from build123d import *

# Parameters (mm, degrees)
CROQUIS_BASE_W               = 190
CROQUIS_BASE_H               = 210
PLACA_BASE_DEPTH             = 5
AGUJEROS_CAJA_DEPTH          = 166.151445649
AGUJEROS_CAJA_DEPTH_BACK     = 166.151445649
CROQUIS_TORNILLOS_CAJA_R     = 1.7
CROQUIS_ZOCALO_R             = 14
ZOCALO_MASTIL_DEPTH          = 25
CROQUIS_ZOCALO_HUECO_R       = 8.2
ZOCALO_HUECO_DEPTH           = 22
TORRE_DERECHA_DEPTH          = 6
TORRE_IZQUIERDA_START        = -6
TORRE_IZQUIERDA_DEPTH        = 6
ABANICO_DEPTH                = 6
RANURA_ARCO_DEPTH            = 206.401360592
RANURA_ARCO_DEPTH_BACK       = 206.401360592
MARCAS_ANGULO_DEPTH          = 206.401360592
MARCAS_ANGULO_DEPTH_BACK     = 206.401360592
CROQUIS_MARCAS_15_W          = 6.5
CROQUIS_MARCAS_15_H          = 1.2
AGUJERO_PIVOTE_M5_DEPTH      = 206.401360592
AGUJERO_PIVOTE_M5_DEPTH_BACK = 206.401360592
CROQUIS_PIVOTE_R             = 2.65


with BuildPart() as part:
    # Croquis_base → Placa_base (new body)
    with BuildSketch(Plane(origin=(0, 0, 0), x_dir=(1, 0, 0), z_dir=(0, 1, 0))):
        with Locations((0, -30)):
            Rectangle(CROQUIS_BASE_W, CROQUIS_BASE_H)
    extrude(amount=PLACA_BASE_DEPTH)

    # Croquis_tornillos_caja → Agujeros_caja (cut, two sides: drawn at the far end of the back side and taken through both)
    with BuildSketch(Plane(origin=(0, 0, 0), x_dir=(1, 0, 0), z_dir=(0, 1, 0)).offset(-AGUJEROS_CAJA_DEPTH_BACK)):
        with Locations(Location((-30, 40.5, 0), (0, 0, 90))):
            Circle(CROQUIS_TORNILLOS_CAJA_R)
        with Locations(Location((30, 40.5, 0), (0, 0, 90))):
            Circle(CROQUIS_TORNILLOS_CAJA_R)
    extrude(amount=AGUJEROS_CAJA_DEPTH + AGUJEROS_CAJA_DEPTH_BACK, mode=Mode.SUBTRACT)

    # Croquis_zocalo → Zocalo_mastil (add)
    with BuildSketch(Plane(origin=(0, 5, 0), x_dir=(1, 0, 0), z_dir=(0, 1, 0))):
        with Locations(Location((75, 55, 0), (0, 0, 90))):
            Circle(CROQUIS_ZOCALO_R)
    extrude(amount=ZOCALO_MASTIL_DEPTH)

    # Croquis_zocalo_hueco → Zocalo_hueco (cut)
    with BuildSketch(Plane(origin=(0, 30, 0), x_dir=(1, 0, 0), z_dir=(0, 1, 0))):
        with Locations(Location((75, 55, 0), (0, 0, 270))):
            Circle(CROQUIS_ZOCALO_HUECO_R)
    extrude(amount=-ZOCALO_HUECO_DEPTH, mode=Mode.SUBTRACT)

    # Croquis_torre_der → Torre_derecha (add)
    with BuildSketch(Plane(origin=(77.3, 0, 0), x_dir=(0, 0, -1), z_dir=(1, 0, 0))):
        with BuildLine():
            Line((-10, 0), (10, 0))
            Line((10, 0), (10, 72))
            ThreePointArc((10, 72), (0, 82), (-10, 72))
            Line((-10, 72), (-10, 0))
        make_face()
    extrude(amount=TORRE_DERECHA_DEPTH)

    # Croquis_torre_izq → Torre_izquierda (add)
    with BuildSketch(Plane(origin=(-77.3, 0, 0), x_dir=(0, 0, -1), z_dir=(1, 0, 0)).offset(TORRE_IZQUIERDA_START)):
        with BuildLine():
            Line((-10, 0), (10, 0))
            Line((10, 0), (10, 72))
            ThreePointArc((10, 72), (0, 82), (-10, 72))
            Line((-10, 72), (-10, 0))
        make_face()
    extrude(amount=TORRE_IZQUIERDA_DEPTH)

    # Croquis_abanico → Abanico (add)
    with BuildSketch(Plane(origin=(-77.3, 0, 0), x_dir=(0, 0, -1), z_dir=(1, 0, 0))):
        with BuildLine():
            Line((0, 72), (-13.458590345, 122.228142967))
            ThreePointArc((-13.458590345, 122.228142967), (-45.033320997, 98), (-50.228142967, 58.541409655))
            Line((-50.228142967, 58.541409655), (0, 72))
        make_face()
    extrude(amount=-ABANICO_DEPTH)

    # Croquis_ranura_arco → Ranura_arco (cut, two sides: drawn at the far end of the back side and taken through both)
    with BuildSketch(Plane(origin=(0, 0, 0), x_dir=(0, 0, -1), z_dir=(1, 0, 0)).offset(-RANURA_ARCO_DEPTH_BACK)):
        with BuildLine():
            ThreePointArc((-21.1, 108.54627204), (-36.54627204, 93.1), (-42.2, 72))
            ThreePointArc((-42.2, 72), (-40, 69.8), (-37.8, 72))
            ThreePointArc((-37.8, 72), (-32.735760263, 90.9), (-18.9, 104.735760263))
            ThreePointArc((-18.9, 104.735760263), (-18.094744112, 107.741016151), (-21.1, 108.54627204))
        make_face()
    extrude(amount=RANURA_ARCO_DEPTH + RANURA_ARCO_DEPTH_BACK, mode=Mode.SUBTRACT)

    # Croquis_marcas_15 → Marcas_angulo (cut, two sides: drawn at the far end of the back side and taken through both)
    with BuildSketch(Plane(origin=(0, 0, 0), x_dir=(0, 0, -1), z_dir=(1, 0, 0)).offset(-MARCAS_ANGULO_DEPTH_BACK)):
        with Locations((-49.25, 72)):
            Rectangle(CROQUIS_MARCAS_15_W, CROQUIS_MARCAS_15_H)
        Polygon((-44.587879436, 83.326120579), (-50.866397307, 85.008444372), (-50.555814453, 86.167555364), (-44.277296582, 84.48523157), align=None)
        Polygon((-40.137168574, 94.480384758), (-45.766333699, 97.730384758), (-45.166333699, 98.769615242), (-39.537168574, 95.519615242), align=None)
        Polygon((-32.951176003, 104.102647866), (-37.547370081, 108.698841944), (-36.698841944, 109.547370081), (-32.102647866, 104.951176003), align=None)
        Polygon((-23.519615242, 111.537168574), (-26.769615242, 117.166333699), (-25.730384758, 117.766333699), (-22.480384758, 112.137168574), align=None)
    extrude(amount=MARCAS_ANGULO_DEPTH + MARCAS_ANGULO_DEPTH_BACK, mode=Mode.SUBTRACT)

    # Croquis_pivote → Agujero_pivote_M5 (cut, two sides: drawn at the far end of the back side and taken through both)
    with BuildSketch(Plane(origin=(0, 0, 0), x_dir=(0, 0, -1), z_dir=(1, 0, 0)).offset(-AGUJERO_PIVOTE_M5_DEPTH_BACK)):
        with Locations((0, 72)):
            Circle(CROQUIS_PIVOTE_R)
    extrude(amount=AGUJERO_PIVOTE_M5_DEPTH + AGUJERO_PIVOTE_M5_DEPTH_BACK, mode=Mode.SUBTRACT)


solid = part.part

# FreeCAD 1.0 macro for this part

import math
import FreeCAD as App
import Part
import Sketcher
from FreeCAD import Vector
Q = App.Units.Quantity

doc = App.newDocument("Part")
body = doc.addObject("PartDesign::Body", "Body")

# Sketch on XZ plane
sketch1 = doc.addObject("Sketcher::SketchObject", "Sketch")
body.addObject(sketch1)
sketch1.AttachmentSupport = (doc.XZ_Plane, [""])
sketch1.MapMode = "FlatFace"
sketch1.addGeometry([
    Part.LineSegment(Vector(-95, -75, 0), Vector(-95, 135, 0)),
    Part.LineSegment(Vector(-95, 135, 0), Vector(95, 135, 0)),
    Part.LineSegment(Vector(95, 135, 0), Vector(95, -75, 0)),
    Part.LineSegment(Vector(95, -75, 0), Vector(-95, -75, 0)),
], False)
sketch1.addConstraint([
    Sketcher.Constraint("Coincident", 0, 2, 1, 1),
    Sketcher.Constraint("Coincident", 1, 2, 2, 1),
    Sketcher.Constraint("Coincident", 2, 2, 3, 1),
    Sketcher.Constraint("Coincident", 3, 2, 0, 1),
    Sketcher.Constraint("Vertical", 0),
    Sketcher.Constraint("Horizontal", 1),
    Sketcher.Constraint("Vertical", 2),
    Sketcher.Constraint("Horizontal", 3),
    Sketcher.Constraint("DistanceX", 1, 1, 1, 2, Q("190 mm")),
    Sketcher.Constraint("DistanceY", 0, 1, 0, 2, Q("210 mm")),
    Sketcher.Constraint("DistanceX", 0, 2, -1, 1, Q("95 mm")),
    Sketcher.Constraint("DistanceY", -1, 1, 0, 2, Q("135 mm")),
])
pad1 = doc.addObject("PartDesign::Pad", "Pad")
body.addObject(pad1)
pad1.Profile = sketch1
pad1.Length = 5
pad1.Reversed = True

# Sketch on XZ plane
sketch2 = doc.addObject("Sketcher::SketchObject", "Sketch001")
body.addObject(sketch2)
sketch2.AttachmentSupport = (doc.XZ_Plane, [""])
sketch2.MapMode = "FlatFace"
sketch2.addGeometry([
    Part.Circle(Vector(-30, -40.5, 0), Vector(0, 0, 1), 1.7),
    Part.Circle(Vector(30, -40.5, 0), Vector(0, 0, 1), 1.7),
], False)
sketch2.addConstraint([
    Sketcher.Constraint("Equal", 0, 1),
    Sketcher.Constraint("Symmetric", 0, 3, 1, 3, -2),
    Sketcher.Constraint("Diameter", 0, Q("3.4 mm")),
    Sketcher.Constraint("DistanceX", 0, 3, -1, 1, Q("30 mm")),
    Sketcher.Constraint("DistanceY", 0, 3, -1, 1, Q("40.5 mm")),
])
pocket1 = doc.addObject("PartDesign::Pocket", "Pocket")
body.addObject(pocket1)
pocket1.Profile = sketch2
pocket1.Type = "ThroughAll"
pocket1.Midplane = True

# Sketch on XZ plane
sketch3 = doc.addObject("Sketcher::SketchObject", "Sketch002")
body.addObject(sketch3)
sketch3.AttachmentSupport = (doc.XZ_Plane, [""])
sketch3.MapMode = "FlatFace"
sketch3.AttachmentOffset = App.Placement(Vector(0, 0, -5), App.Rotation())
sketch3.addGeometry(Part.Circle(Vector(75, -55, 0), Vector(0, 0, 1), 14), False)
sketch3.addConstraint([
    Sketcher.Constraint("Diameter", 0, Q("28 mm")),
    Sketcher.Constraint("DistanceX", -1, 1, 0, 3, Q("75 mm")),
    Sketcher.Constraint("DistanceY", 0, 3, -1, 1, Q("55 mm")),
])
pad2 = doc.addObject("PartDesign::Pad", "Pad001")
body.addObject(pad2)
pad2.Profile = sketch3
pad2.Length = 25
pad2.Reversed = True

# Sketch on XZ plane
sketch4 = doc.addObject("Sketcher::SketchObject", "Sketch003")
body.addObject(sketch4)
sketch4.AttachmentSupport = (doc.XZ_Plane, [""])
sketch4.MapMode = "FlatFace"
sketch4.AttachmentOffset = App.Placement(Vector(0, 0, -30), App.Rotation())
sketch4.addGeometry(Part.Circle(Vector(75, -55, 0), Vector(0, 0, 1), 8), False)
sketch4.addConstraint([
    Sketcher.Constraint("Diameter", 0, Q("16.4 mm")),
    Sketcher.Constraint("DistanceX", -1, 1, 0, 3, Q("75 mm")),
    Sketcher.Constraint("DistanceY", 0, 3, -1, 1, Q("55 mm")),
])
pocket2 = doc.addObject("PartDesign::Pocket", "Pocket001")
body.addObject(pocket2)
pocket2.Profile = sketch4
pocket2.Length = 22
pocket2.Reversed = True

# Sketch on YZ plane
sketch5 = doc.addObject("Sketcher::SketchObject", "Sketch004")
body.addObject(sketch5)
sketch5.AttachmentSupport = (doc.YZ_Plane, [""])
sketch5.MapMode = "FlatFace"
sketch5.AttachmentOffset = App.Placement(Vector(0, 0, 77.3), App.Rotation())
sketch5.addGeometry([
    Part.LineSegment(Vector(0, 10, 0), Vector(0, -10, 0)),
    Part.LineSegment(Vector(0, -10, 0), Vector(72, -10, 0)),
    Part.ArcOfCircle(Part.Circle(Vector(72, 0, 0), Vector(0, 0, 1), 10), math.radians(-90), math.radians(90)),
    Part.LineSegment(Vector(72, 10, 0), Vector(0, 10, 0)),
], False)
sketch5.addConstraint([
    Sketcher.Constraint("Coincident", 0, 2, 1, 1),
    Sketcher.Constraint("Tangent", 1, 2, 2, 1),
    Sketcher.Constraint("Tangent", 2, 2, 3, 1),
    Sketcher.Constraint("Coincident", 3, 2, 0, 1),
    Sketcher.Constraint("Vertical", 0),
    Sketcher.Constraint("Horizontal", 1),
    Sketcher.Constraint("Horizontal", 3),
    Sketcher.Constraint("Symmetric", 0, 2, 3, 2, -1, 1),
    Sketcher.Constraint("Radius", 2, Q("10 mm")),
    Sketcher.Constraint("DistanceX", 1, 1, 1, 2, Q("72 mm")),
])
pad3 = doc.addObject("PartDesign::Pad", "Pad002")
body.addObject(pad3)
pad3.Profile = sketch5
pad3.Length = 6

# Sketch on YZ plane
sketch6 = doc.addObject("Sketcher::SketchObject", "Sketch005")
body.addObject(sketch6)
sketch6.AttachmentSupport = (doc.YZ_Plane, [""])
sketch6.MapMode = "FlatFace"
sketch6.AttachmentOffset = App.Placement(Vector(0, 0, -83.3), App.Rotation())
sketch6.addGeometry([
    Part.LineSegment(Vector(0, 10, 0), Vector(0, -10, 0)),
    Part.LineSegment(Vector(0, -10, 0), Vector(72, -10, 0)),
    Part.ArcOfCircle(Part.Circle(Vector(72, 0, 0), Vector(0, 0, 1), 10), math.radians(-90), math.radians(90)),
    Part.LineSegment(Vector(72, 10, 0), Vector(0, 10, 0)),
], False)
sketch6.addConstraint([
    Sketcher.Constraint("Coincident", 0, 2, 1, 1),
    Sketcher.Constraint("Tangent", 1, 2, 2, 1),
    Sketcher.Constraint("Tangent", 2, 2, 3, 1),
    Sketcher.Constraint("Coincident", 3, 2, 0, 1),
    Sketcher.Constraint("Vertical", 0),
    Sketcher.Constraint("Horizontal", 1),
    Sketcher.Constraint("Horizontal", 3),
    Sketcher.Constraint("Symmetric", 0, 2, 3, 2, -1, 1),
    Sketcher.Constraint("Radius", 2, Q("10 mm")),
    Sketcher.Constraint("DistanceX", 1, 1, 1, 2, Q("72 mm")),
])
pad4 = doc.addObject("PartDesign::Pad", "Pad003")
body.addObject(pad4)
pad4.Profile = sketch6
pad4.Length = 6

# Sketch on YZ plane
sketch7 = doc.addObject("Sketcher::SketchObject", "Sketch006")
body.addObject(sketch7)
sketch7.AttachmentSupport = (doc.YZ_Plane, [""])
sketch7.MapMode = "FlatFace"
sketch7.AttachmentOffset = App.Placement(Vector(0, 0, -77.3), App.Rotation())
sketch7.addGeometry([
    Part.LineSegment(Vector(72, 0, 0), Vector(122, 13, 0)),
    Part.ArcOfCircle(Part.Circle(Vector(72, 0, 0), Vector(0, 0, 1), 52), math.radians(15), math.radians(105)),
    Part.LineSegment(Vector(59, 50, 0), Vector(72, 0, 0)),
], False)
sketch7.addConstraint([
    Sketcher.Constraint("Coincident", 0, 2, 1, 1),
    Sketcher.Constraint("Coincident", 1, 2, 2, 1),
    Sketcher.Constraint("Coincident", 2, 2, 0, 1),
    Sketcher.Constraint("Coincident", 2, 2, 1, 3),
    Sketcher.Constraint("PointOnObject", 1, 3, -1),
    Sketcher.Constraint("Perpendicular", 0, 2),
    Sketcher.Constraint("Radius", 1, Q("52 mm")),
    Sketcher.Constraint("Angle", 0, Q("15 deg")),
    Sketcher.Constraint("DistanceX", -1, 1, 1, 3, Q("72 mm")),
])
pad5 = doc.addObject("PartDesign::Pad", "Pad004")
body.addObject(pad5)
pad5.Profile = sketch7
pad5.Length = 6
pad5.Reversed = True

# Sketch on YZ plane
sketch8 = doc.addObject("Sketcher::SketchObject", "Sketch007")
body.addObject(sketch8)
sketch8.AttachmentSupport = (doc.YZ_Plane, [""])
sketch8.MapMode = "FlatFace"
sketch8.addGeometry([
    Part.ArcOfCircle(Part.Circle(Vector(72, 0, 0), Vector(0, 0, 1), 42.2), math.radians(30), math.radians(90)),
    Part.ArcOfCircle(Part.Circle(Vector(72, 40, 0), Vector(0, 0, 1), 2.2), math.radians(90), math.radians(270)),
    Part.ArcOfCircle(Part.Circle(Vector(72, 0, 0), Vector(0, 0, 1), 37.8), math.radians(30), math.radians(90)),
    Part.ArcOfCircle(Part.Circle(Vector(106.6, 20, 0), Vector(0, 0, 1), 2.2), math.radians(-150), math.radians(30)),
], False)
sketch8.addConstraint([
    Sketcher.Constraint("Tangent", 0, 2, 1, 1),
    Sketcher.Constraint("Tangent", 1, 2, 2, 2),
    Sketcher.Constraint("Tangent", 2, 1, 3, 1),
    Sketcher.Constraint("Tangent", 3, 2, 0, 1),
    Sketcher.Constraint("Coincident", 2, 3, 0, 3),
    Sketcher.Constraint("PointOnObject", 0, 3, -1),
    Sketcher.Constraint("Vertical", 0, 3, 1, 3),
    Sketcher.Constraint("Radius", 0, Q("42.2 mm")),
    Sketcher.Constraint("Radius", 1, Q("2.2 mm")),
    Sketcher.Constraint("DistanceX", -1, 1, 0, 3, Q("72 mm")),
    Sketcher.Constraint("DistanceY", -1, 1, 3, 3, Q("20 mm")),
])
pocket3 = doc.addObject("PartDesign::Pocket", "Pocket002")
body.addObject(pocket3)
pocket3.Profile = sketch8
pocket3.Type = "ThroughAll"
pocket3.Midplane = True

# Sketch on YZ plane
sketch9 = doc.addObject("Sketcher::SketchObject", "Sketch008")
body.addObject(sketch9)
sketch9.AttachmentSupport = (doc.YZ_Plane, [""])
sketch9.MapMode = "FlatFace"
sketch9.addGeometry([
    Part.LineSegment(Vector(72.6, 52.5, 0), Vector(71.4, 52.5, 0)),  # 0
    Part.LineSegment(Vector(71.4, 52.5, 0), Vector(71.4, 46, 0)),  # 1
    Part.LineSegment(Vector(71.4, 46, 0), Vector(72.6, 46, 0)),  # 2
    Part.LineSegment(Vector(72.6, 46, 0), Vector(72.6, 52.5, 0)),  # 3
    Part.LineSegment(Vector(85, 50.9, 0), Vector(83.3, 44.6, 0)),  # 4
    Part.LineSegment(Vector(83.3, 44.6, 0), Vector(84.5, 44.3, 0)),  # 5
    Part.LineSegment(Vector(84.5, 44.3, 0), Vector(86.2, 50.6, 0)),  # 6
    Part.LineSegment(Vector(86.2, 50.6, 0), Vector(85, 50.9, 0)),  # 7
    Part.LineSegment(Vector(97.7, 45.8, 0), Vector(94.5, 40.1, 0)),  # 8
    Part.LineSegment(Vector(94.5, 40.1, 0), Vector(95.5, 39.5, 0)),  # 9
    Part.LineSegment(Vector(95.5, 39.5, 0), Vector(98.8, 45.2, 0)),  # 10
    Part.LineSegment(Vector(98.8, 45.2, 0), Vector(97.7, 45.8, 0)),  # 11
    Part.LineSegment(Vector(108.7, 37.5, 0), Vector(104.1, 33, 0)),  # 12
    Part.LineSegment(Vector(104.1, 33, 0), Vector(105, 32.1, 0)),  # 13
    Part.LineSegment(Vector(105, 32.1, 0), Vector(109.5, 36.7, 0)),  # 14
    Part.LineSegment(Vector(109.5, 36.7, 0), Vector(108.7, 37.5, 0)),  # 15
    Part.LineSegment(Vector(117.2, 26.8, 0), Vector(111.5, 23.5, 0)),  # 16
    Part.LineSegment(Vector(111.5, 23.5, 0), Vector(112.1, 22.5, 0)),  # 17
    Part.LineSegment(Vector(112.1, 22.5, 0), Vector(117.8, 25.7, 0)),  # 18
    Part.LineSegment(Vector(117.8, 25.7, 0), Vector(117.2, 26.8, 0)),  # 19
], False)
sketch9.addConstraint([
    Sketcher.Constraint("Coincident", 0, 2, 1, 1),
    Sketcher.Constraint("Coincident", 1, 2, 2, 1),
    Sketcher.Constraint("Coincident", 2, 2, 3, 1),
    Sketcher.Constraint("Coincident", 3, 2, 0, 1),
    Sketcher.Constraint("Coincident", 4, 2, 5, 1),
    Sketcher.Constraint("Coincident", 5, 2, 6, 1),
    Sketcher.Constraint("Coincident", 6, 2, 7, 1),
    Sketcher.Constraint("Coincident", 7, 2, 4, 1),
    Sketcher.Constraint("Coincident", 8, 2, 9, 1),
    Sketcher.Constraint("Coincident", 9, 2, 10, 1),
    Sketcher.Constraint("Coincident", 10, 2, 11, 1),
    Sketcher.Constraint("Coincident", 11, 2, 8, 1),
    Sketcher.Constraint("Coincident", 12, 2, 13, 1),
    Sketcher.Constraint("Coincident", 13, 2, 14, 1),
    Sketcher.Constraint("Coincident", 14, 2, 15, 1),
    Sketcher.Constraint("Coincident", 15, 2, 12, 1),
    Sketcher.Constraint("Coincident", 16, 2, 17, 1),
    Sketcher.Constraint("Coincident", 17, 2, 18, 1),
    Sketcher.Constraint("Coincident", 18, 2, 19, 1),
    Sketcher.Constraint("Coincident", 19, 2, 16, 1),
    Sketcher.Constraint("Horizontal", 0),
    Sketcher.Constraint("Vertical", 1),
    Sketcher.Constraint("Horizontal", 2),
    Sketcher.Constraint("Vertical", 3),
    Sketcher.Constraint("Perpendicular", 4, 5),
    Sketcher.Constraint("Perpendicular", 5, 6),
    Sketcher.Constraint("Perpendicular", 6, 7),
    Sketcher.Constraint("Perpendicular", 8, 9),
    Sketcher.Constraint("Perpendicular", 9, 10),
    Sketcher.Constraint("Perpendicular", 10, 11),
    Sketcher.Constraint("Perpendicular", 12, 13),
    Sketcher.Constraint("Perpendicular", 13, 14),
    Sketcher.Constraint("Perpendicular", 14, 15),
    Sketcher.Constraint("Perpendicular", 16, 17),
    Sketcher.Constraint("Perpendicular", 17, 18),
    Sketcher.Constraint("Perpendicular", 18, 19),
    Sketcher.Constraint("Equal", 6, 8),
    Sketcher.Constraint("Equal", 7, 9),
    Sketcher.Constraint("Equal", 10, 12),
    Sketcher.Constraint("Equal", 11, 13),
    Sketcher.Constraint("Equal", 14, 16),
    Sketcher.Constraint("Equal", 15, 17),
    Sketcher.Constraint("Angle", 4, Q("-105 deg")),
    Sketcher.Constraint("Angle", 8, Q("-120 deg")),
    Sketcher.Constraint("Angle", 12, Q("-135 deg")),
    Sketcher.Constraint("Angle", 16, Q("-150 deg")),
    Sketcher.Constraint("DistanceX", 0, 2, 0, 1, Q("1.2 mm")),
    Sketcher.Constraint("DistanceY", 1, 2, 1, 1, Q("6.5 mm")),
    Sketcher.Constraint("DistanceY", -1, 1, 1, 2, Q("46 mm")),
    Sketcher.Constraint("Distance", 4, Q("6.5 mm")),
    Sketcher.Constraint("Distance", 5, Q("1.2 mm")),
    Sketcher.Constraint("DistanceX", -1, 1, 0, 2, Q("71.4 mm")),
    Sketcher.Constraint("DistanceY", 15, 2, 9, 2, Q("1.989798 mm")),
    Sketcher.Constraint("DistanceX", 14, 2, 16, 2, Q("1.989798 mm")),
    Sketcher.Constraint("DistanceX", -1, 1, 4, 2, Q("83.326121 mm")),
    Sketcher.Constraint("DistanceY", -1, 1, 4, 2, Q("44.587879 mm")),
    Sketcher.Constraint("DistanceY", -1, 1, 8, 2, Q("40.137169 mm")),
    Sketcher.Constraint("DistanceX", -1, 1, 14, 2, Q("109.54737 mm")),
    Sketcher.Constraint("DistanceX", 6, 2, 8, 2, Q("8.312829 mm")),
    Sketcher.Constraint("DistanceY", 16, 2, 12, 2, Q("9.431561 mm")),
])
pocket4 = doc.addObject("PartDesign::Pocket", "Pocket003")
body.addObject(pocket4)
pocket4.Profile = sketch9
pocket4.Type = "ThroughAll"
pocket4.Midplane = True

# Sketch on YZ plane
sketch10 = doc.addObject("Sketcher::SketchObject", "Sketch009")
body.addObject(sketch10)
sketch10.AttachmentSupport = (doc.YZ_Plane, [""])
sketch10.MapMode = "FlatFace"
sketch10.addGeometry(Part.Circle(Vector(72, 0, 0), Vector(0, 0, 1), 2.6), False)
sketch10.addConstraint([
    Sketcher.Constraint("PointOnObject", 0, 3, -1),
    Sketcher.Constraint("Diameter", 0, Q("5.3 mm")),
    Sketcher.Constraint("DistanceX", -1, 1, 0, 3, Q("72 mm")),
])
pocket5 = doc.addObject("PartDesign::Pocket", "Pocket004")
body.addObject(pocket5)
pocket5.Profile = sketch10
pocket5.Type = "ThroughAll"
pocket5.Midplane = True

doc.recompute()
